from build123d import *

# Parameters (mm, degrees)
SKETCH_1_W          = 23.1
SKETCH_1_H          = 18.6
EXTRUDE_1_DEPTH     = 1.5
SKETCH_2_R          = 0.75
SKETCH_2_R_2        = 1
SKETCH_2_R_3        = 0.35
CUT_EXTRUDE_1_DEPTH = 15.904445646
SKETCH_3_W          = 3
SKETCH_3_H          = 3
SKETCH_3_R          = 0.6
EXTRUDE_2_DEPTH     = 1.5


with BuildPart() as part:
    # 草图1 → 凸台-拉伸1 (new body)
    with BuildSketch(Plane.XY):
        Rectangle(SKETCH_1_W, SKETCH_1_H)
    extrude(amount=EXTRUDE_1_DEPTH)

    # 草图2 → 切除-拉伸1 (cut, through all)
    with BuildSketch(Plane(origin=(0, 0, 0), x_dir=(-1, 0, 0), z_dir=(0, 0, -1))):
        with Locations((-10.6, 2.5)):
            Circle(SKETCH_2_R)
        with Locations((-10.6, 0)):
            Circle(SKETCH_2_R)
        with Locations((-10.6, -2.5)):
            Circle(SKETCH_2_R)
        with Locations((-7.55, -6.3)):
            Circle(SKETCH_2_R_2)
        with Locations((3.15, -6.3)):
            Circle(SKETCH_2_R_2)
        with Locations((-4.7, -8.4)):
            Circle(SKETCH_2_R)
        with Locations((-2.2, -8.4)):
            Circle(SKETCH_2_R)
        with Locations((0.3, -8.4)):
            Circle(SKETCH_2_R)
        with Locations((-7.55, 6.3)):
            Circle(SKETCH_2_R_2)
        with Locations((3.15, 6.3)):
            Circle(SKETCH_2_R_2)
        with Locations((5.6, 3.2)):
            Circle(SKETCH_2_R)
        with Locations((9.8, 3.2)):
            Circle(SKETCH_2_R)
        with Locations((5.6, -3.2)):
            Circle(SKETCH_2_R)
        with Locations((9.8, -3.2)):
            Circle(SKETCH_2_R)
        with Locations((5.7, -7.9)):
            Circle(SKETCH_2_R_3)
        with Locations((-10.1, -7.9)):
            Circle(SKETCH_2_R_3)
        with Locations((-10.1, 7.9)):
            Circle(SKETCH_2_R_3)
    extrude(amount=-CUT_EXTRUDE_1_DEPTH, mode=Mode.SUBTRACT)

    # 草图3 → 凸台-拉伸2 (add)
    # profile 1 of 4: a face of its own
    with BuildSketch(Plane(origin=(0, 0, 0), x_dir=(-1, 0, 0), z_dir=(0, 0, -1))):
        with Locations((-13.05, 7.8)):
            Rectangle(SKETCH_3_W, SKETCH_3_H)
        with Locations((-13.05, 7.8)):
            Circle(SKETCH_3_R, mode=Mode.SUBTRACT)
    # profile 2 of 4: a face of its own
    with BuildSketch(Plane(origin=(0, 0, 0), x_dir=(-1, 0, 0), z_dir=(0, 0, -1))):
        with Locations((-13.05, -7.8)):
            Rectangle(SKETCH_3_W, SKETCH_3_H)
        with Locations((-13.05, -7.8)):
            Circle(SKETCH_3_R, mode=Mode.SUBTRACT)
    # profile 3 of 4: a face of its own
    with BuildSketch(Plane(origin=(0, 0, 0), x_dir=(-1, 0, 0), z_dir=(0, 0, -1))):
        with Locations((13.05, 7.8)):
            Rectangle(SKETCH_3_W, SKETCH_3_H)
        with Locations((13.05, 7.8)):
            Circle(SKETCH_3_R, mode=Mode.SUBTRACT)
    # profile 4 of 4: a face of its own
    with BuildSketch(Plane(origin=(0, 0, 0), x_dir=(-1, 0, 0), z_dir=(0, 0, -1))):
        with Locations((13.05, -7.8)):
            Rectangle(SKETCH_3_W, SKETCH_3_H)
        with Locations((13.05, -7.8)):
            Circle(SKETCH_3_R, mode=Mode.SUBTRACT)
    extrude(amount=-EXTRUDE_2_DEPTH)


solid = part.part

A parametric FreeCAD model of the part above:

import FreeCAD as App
import Part
import Sketcher
from FreeCAD import Vector


def add_polygon(sketch, points):
    """Adds a closed chain of lines whose ends are joined by coincident constraints."""
    first, n = sketch.GeometryCount, len(points)
    for a, b in zip(points, points[1:] + points[:1]):
        sketch.addGeometry(Part.LineSegment(App.Vector(*a, 0), App.Vector(*b, 0)), False)
    for i in range(n):
        sketch.addConstraint(Sketcher.Constraint("Coincident", first + i, 2, first + (i + 1) % n, 1))

doc = App.newDocument("Part")
body = doc.addObject("PartDesign::Body", "Body")

# Sketch on XY plane
sketch1 = body.newObject("Sketcher::SketchObject", "Sketch")
sketch1.AttachmentSupport = (doc.getObject("XY_Plane"), [""])
sketch1.MapMode = "FlatFace"
add_polygon(sketch1, [(-11.55, 9.3), (-11.55, -9.3), (11.55, -9.3), (11.55, 9.3)])  # lines 0-3
sketch1.addConstraint([
    Sketcher.Constraint("Vertical", 0),
    Sketcher.Constraint("Horizontal", 1),
    Sketcher.Constraint("Vertical", 2),
    Sketcher.Constraint("Horizontal", 3),
    Sketcher.Constraint("Symmetric", 0, 2, 2, 2, -1, 1),
    Sketcher.Constraint("DistanceX", 1, 1, 1, 2, 23.1),
    Sketcher.Constraint("DistanceY", 0, 2, 0, 1, 18.6),
])
pad1 = body.newObject("PartDesign::Pad", "Pad")
pad1.Profile = sketch1
pad1.Length = 1.5

# Sketch on XY plane
sketch2 = body.newObject("Sketcher::SketchObject", "Sketch001")
sketch2.AttachmentSupport = (doc.getObject("XY_Plane"), [""])
sketch2.MapMode = "FlatFace"
sketch2.addGeometry([
    Part.Circle(Vector(10.6, 2.5, 0), Vector(0, 0, 1), 0.75),  # 0
    Part.Circle(Vector(10.6, 0, 0), Vector(0, 0, 1), 0.75),  # 1
    Part.Circle(Vector(10.6, -2.5, 0), Vector(0, 0, 1), 0.75),  # 2
    Part.Circle(Vector(7.55, -6.3, 0), Vector(0, 0, 1), 1),  # 3
    Part.Circle(Vector(-3.15, -6.3, 0), Vector(0, 0, 1), 1),  # 4
    Part.Circle(Vector(4.7, -8.4, 0), Vector(0, 0, 1), 0.75),  # 5
    Part.Circle(Vector(2.2, -8.4, 0), Vector(0, 0, 1), 0.75),  # 6
    Part.Circle(Vector(-0.3, -8.4, 0), Vector(0, 0, 1), 0.75),  # 7
    Part.Circle(Vector(7.55, 6.3, 0), Vector(0, 0, 1), 1),  # 8
    Part.Circle(Vector(-3.15, 6.3, 0), Vector(0, 0, 1), 1),  # 9
    Part.Circle(Vector(-5.6, 3.2, 0), Vector(0, 0, 1), 0.75),  # 10
    Part.Circle(Vector(-9.8, 3.2, 0), Vector(0, 0, 1), 0.75),  # 11
    Part.Circle(Vector(-5.6, -3.2, 0), Vector(0, 0, 1), 0.75),  # 12
    Part.Circle(Vector(-9.8, -3.2, 0), Vector(0, 0, 1), 0.75),  # 13
    Part.Circle(Vector(-5.7, -7.9, 0), Vector(0, 0, 1), 0.35),  # 14
    Part.Circle(Vector(10.1, -7.9, 0), Vector(0, 0, 1), 0.35),  # 15
    Part.Circle(Vector(10.1, 7.9, 0), Vector(0, 0, 1), 0.35),  # 16
], False)
sketch2.addConstraint([
    Sketcher.Constraint("Equal", 0, 1),
    Sketcher.Constraint("Equal", 1, 2),
    Sketcher.Constraint("Equal", 3, 4),
    Sketcher.Constraint("Equal", 2, 5),
    Sketcher.Constraint("Equal", 5, 6),
    Sketcher.Constraint("Equal", 6, 7),
    Sketcher.Constraint("Equal", 4, 8),
    Sketcher.Constraint("Equal", 8, 9),
    Sketcher.Constraint("Equal", 7, 10),
    Sketcher.Constraint("Equal", 10, 11),
    Sketcher.Constraint("Equal", 11, 12),
    Sketcher.Constraint("Equal", 12, 13),
    Sketcher.Constraint("Equal", 14, 15),
    Sketcher.Constraint("Equal", 15, 16),
    Sketcher.Constraint("Symmetric", 0, 3, 2, 3, -1),
    Sketcher.Constraint("Symmetric", 3, 3, 8, 3, -1),
    Sketcher.Constraint("Symmetric", 4, 3, 9, 3, -1),
    Sketcher.Constraint("Symmetric", 10, 3, 12, 3, -1),
    Sketcher.Constraint("Symmetric", 11, 3, 13, 3, -1),
    Sketcher.Constraint("Symmetric", 15, 3, 16, 3, -1),
    Sketcher.Constraint("PointOnObject", 1, 3, -1),
    Sketcher.Constraint("Horizontal", 3, 3, 4, 3),
    Sketcher.Constraint("Horizontal", 5, 3, 6, 3),
    Sketcher.Constraint("Horizontal", 6, 3, 7, 3),
    Sketcher.Constraint("Horizontal", 10, 3, 11, 3),
    Sketcher.Constraint("Horizontal", 14, 3, 15, 3),
    Sketcher.Constraint("Vertical", 0, 3, 1, 3),
    Sketcher.Constraint("Diameter", 3, 2.0),
    Sketcher.Constraint("Diameter", 0, 1.5),
    Sketcher.Constraint("Diameter", 14, 0.7),
    Sketcher.Constraint("DistanceY", 2, 3, 0, 3, 5.0),
    Sketcher.Constraint("DistanceX", 7, 3, 5, 3, 5.0),
    Sketcher.Constraint("DistanceX", 11, 3, 6, 3, 12.0),
    Sketcher.Constraint("DistanceX", -1, 1, 0, 3, 10.6),
    Sketcher.Constraint("DistanceY", 3, 3, -1, 1, 6.3),
    Sketcher.Constraint("DistanceX", -1, 1, 5, 3, 4.7),
    Sketcher.Constraint("DistanceY", 5, 3, -1, 1, 8.4),
    Sketcher.Constraint("DistanceX", -1, 1, 6, 3, 2.2),
    Sketcher.Constraint("DistanceX", 10, 3, -1, 1, 5.6),
    Sketcher.Constraint("DistanceY", -1, 1, 10, 3, 3.2),
    Sketcher.Constraint("DistanceX", 14, 3, -1, 1, 5.7),
    Sketcher.Constraint("DistanceY", 14, 3, -1, 1, 7.9),
    Sketcher.Constraint("DistanceX", -1, 1, 15, 3, 10.1),
    Sketcher.Constraint("DistanceX", 4, 3, 3, 3, 10.7),
    Sketcher.Constraint("DistanceX", -1, 1, 3, 3, 7.55),
])
pocket1 = body.newObject("PartDesign::Pocket", "Pocket")
pocket1.Profile = sketch2
pocket1.Type = "ThroughAll"
pocket1.Reversed = True

# Sketch on XY plane
sketch3 = body.newObject("Sketcher::SketchObject", "Sketch002")
sketch3.AttachmentSupport = (doc.getObject("XY_Plane"), [""])
sketch3.MapMode = "FlatFace"
add_polygon(sketch3, [(14.55, 9.3), (14.55, 6.3), (11.55, 6.3), (11.55, 9.3)])  # lines 0-3
sketch3.addGeometry(Part.Circle(Vector(13.05, 7.8, 0), Vector(0, 0, 1), 0.6), False)  # 4
add_polygon(sketch3, [(14.55, -6.3), (14.55, -9.3), (11.55, -9.3), (11.55, -6.3)])  # lines 5-8
sketch3.addGeometry(Part.Circle(Vector(13.05, -7.8, 0), Vector(0, 0, 1), 0.6), False)  # 9
add_polygon(sketch3, [(-11.55, 9.3), (-11.55, 6.3), (-14.55, 6.3), (-14.55, 9.3)])  # lines 10-13
sketch3.addGeometry(Part.Circle(Vector(-13.05, 7.8, 0), Vector(0, 0, 1), 0.6), False)  # 14
add_polygon(sketch3, [(-11.55, -6.3), (-11.55, -9.3), (-14.55, -9.3), (-14.55, -6.3)])  # lines 15-18
sketch3.addGeometry(Part.Circle(Vector(-13.05, -7.8, 0), Vector(0, 0, 1), 0.6), False)  # 19
sketch3.addConstraint([
    Sketcher.Constraint("Vertical", 0),
    Sketcher.Constraint("Horizontal", 1),
    Sketcher.Constraint("Vertical", 2),
    Sketcher.Constraint("Horizontal", 3),
    Sketcher.Constraint("Vertical", 5),
    Sketcher.Constraint("Horizontal", 6),
    Sketcher.Constraint("Vertical", 7),
    Sketcher.Constraint("Horizontal", 8),
    Sketcher.Constraint("Vertical", 10),
    Sketcher.Constraint("Horizontal", 11),
    Sketcher.Constraint("Vertical", 12),
    Sketcher.Constraint("Horizontal", 13),
    Sketcher.Constraint("Vertical", 15),
    Sketcher.Constraint("Horizontal", 16),
    Sketcher.Constraint("Vertical", 17),
    Sketcher.Constraint("Horizontal", 18),
    Sketcher.Constraint("Equal", 4, 9),
    Sketcher.Constraint("Equal", 9, 14),
    Sketcher.Constraint("Equal", 14, 19),
    Sketcher.Constraint("Symmetric", 9, 3, 14, 3, -1, 1),
    Sketcher.Constraint("Symmetric", 4, 3, 19, 3, -1, 1),
    Sketcher.Constraint("Symmetric", 7, 2, 10, 2, -1, 1),
    Sketcher.Constraint("Symmetric", 5, 2, 12, 2, -1, 1),
    Sketcher.Constraint("Symmetric", 2, 2, 15, 2, -1, 1),
    Sketcher.Constraint("Symmetric", 0, 2, 17, 2, -1, 1),
    Sketcher.Constraint("Symmetric", 4, 3, 14, 3, -2),
    Sketcher.Constraint("Symmetric", 1, 2, 10, 2, -2),
    Sketcher.Constraint("Symmetric", 3, 2, 12, 2, -2),
    Sketcher.Constraint("Equal", 18, 0),
    Sketcher.Constraint("Diameter", 4, 1.2),
    Sketcher.Constraint("DistanceX", 1, 2, 1, 1, 3.0),
    Sketcher.Constraint("DistanceY", -1, 1, 4, 3, 7.8),
    Sketcher.Constraint("DistanceY", -1, 1, 0, 2, 6.3),
    Sketcher.Constraint("DistanceX", 14, 3, 4, 3, 26.1),
    Sketcher.Constraint("DistanceX", 4, 3, 0, 2, 1.5),
])
pad2 = body.newObject("PartDesign::Pad", "Pad001")
pad2.Profile = sketch3
pad2.Length = 1.5

doc.recompute()
